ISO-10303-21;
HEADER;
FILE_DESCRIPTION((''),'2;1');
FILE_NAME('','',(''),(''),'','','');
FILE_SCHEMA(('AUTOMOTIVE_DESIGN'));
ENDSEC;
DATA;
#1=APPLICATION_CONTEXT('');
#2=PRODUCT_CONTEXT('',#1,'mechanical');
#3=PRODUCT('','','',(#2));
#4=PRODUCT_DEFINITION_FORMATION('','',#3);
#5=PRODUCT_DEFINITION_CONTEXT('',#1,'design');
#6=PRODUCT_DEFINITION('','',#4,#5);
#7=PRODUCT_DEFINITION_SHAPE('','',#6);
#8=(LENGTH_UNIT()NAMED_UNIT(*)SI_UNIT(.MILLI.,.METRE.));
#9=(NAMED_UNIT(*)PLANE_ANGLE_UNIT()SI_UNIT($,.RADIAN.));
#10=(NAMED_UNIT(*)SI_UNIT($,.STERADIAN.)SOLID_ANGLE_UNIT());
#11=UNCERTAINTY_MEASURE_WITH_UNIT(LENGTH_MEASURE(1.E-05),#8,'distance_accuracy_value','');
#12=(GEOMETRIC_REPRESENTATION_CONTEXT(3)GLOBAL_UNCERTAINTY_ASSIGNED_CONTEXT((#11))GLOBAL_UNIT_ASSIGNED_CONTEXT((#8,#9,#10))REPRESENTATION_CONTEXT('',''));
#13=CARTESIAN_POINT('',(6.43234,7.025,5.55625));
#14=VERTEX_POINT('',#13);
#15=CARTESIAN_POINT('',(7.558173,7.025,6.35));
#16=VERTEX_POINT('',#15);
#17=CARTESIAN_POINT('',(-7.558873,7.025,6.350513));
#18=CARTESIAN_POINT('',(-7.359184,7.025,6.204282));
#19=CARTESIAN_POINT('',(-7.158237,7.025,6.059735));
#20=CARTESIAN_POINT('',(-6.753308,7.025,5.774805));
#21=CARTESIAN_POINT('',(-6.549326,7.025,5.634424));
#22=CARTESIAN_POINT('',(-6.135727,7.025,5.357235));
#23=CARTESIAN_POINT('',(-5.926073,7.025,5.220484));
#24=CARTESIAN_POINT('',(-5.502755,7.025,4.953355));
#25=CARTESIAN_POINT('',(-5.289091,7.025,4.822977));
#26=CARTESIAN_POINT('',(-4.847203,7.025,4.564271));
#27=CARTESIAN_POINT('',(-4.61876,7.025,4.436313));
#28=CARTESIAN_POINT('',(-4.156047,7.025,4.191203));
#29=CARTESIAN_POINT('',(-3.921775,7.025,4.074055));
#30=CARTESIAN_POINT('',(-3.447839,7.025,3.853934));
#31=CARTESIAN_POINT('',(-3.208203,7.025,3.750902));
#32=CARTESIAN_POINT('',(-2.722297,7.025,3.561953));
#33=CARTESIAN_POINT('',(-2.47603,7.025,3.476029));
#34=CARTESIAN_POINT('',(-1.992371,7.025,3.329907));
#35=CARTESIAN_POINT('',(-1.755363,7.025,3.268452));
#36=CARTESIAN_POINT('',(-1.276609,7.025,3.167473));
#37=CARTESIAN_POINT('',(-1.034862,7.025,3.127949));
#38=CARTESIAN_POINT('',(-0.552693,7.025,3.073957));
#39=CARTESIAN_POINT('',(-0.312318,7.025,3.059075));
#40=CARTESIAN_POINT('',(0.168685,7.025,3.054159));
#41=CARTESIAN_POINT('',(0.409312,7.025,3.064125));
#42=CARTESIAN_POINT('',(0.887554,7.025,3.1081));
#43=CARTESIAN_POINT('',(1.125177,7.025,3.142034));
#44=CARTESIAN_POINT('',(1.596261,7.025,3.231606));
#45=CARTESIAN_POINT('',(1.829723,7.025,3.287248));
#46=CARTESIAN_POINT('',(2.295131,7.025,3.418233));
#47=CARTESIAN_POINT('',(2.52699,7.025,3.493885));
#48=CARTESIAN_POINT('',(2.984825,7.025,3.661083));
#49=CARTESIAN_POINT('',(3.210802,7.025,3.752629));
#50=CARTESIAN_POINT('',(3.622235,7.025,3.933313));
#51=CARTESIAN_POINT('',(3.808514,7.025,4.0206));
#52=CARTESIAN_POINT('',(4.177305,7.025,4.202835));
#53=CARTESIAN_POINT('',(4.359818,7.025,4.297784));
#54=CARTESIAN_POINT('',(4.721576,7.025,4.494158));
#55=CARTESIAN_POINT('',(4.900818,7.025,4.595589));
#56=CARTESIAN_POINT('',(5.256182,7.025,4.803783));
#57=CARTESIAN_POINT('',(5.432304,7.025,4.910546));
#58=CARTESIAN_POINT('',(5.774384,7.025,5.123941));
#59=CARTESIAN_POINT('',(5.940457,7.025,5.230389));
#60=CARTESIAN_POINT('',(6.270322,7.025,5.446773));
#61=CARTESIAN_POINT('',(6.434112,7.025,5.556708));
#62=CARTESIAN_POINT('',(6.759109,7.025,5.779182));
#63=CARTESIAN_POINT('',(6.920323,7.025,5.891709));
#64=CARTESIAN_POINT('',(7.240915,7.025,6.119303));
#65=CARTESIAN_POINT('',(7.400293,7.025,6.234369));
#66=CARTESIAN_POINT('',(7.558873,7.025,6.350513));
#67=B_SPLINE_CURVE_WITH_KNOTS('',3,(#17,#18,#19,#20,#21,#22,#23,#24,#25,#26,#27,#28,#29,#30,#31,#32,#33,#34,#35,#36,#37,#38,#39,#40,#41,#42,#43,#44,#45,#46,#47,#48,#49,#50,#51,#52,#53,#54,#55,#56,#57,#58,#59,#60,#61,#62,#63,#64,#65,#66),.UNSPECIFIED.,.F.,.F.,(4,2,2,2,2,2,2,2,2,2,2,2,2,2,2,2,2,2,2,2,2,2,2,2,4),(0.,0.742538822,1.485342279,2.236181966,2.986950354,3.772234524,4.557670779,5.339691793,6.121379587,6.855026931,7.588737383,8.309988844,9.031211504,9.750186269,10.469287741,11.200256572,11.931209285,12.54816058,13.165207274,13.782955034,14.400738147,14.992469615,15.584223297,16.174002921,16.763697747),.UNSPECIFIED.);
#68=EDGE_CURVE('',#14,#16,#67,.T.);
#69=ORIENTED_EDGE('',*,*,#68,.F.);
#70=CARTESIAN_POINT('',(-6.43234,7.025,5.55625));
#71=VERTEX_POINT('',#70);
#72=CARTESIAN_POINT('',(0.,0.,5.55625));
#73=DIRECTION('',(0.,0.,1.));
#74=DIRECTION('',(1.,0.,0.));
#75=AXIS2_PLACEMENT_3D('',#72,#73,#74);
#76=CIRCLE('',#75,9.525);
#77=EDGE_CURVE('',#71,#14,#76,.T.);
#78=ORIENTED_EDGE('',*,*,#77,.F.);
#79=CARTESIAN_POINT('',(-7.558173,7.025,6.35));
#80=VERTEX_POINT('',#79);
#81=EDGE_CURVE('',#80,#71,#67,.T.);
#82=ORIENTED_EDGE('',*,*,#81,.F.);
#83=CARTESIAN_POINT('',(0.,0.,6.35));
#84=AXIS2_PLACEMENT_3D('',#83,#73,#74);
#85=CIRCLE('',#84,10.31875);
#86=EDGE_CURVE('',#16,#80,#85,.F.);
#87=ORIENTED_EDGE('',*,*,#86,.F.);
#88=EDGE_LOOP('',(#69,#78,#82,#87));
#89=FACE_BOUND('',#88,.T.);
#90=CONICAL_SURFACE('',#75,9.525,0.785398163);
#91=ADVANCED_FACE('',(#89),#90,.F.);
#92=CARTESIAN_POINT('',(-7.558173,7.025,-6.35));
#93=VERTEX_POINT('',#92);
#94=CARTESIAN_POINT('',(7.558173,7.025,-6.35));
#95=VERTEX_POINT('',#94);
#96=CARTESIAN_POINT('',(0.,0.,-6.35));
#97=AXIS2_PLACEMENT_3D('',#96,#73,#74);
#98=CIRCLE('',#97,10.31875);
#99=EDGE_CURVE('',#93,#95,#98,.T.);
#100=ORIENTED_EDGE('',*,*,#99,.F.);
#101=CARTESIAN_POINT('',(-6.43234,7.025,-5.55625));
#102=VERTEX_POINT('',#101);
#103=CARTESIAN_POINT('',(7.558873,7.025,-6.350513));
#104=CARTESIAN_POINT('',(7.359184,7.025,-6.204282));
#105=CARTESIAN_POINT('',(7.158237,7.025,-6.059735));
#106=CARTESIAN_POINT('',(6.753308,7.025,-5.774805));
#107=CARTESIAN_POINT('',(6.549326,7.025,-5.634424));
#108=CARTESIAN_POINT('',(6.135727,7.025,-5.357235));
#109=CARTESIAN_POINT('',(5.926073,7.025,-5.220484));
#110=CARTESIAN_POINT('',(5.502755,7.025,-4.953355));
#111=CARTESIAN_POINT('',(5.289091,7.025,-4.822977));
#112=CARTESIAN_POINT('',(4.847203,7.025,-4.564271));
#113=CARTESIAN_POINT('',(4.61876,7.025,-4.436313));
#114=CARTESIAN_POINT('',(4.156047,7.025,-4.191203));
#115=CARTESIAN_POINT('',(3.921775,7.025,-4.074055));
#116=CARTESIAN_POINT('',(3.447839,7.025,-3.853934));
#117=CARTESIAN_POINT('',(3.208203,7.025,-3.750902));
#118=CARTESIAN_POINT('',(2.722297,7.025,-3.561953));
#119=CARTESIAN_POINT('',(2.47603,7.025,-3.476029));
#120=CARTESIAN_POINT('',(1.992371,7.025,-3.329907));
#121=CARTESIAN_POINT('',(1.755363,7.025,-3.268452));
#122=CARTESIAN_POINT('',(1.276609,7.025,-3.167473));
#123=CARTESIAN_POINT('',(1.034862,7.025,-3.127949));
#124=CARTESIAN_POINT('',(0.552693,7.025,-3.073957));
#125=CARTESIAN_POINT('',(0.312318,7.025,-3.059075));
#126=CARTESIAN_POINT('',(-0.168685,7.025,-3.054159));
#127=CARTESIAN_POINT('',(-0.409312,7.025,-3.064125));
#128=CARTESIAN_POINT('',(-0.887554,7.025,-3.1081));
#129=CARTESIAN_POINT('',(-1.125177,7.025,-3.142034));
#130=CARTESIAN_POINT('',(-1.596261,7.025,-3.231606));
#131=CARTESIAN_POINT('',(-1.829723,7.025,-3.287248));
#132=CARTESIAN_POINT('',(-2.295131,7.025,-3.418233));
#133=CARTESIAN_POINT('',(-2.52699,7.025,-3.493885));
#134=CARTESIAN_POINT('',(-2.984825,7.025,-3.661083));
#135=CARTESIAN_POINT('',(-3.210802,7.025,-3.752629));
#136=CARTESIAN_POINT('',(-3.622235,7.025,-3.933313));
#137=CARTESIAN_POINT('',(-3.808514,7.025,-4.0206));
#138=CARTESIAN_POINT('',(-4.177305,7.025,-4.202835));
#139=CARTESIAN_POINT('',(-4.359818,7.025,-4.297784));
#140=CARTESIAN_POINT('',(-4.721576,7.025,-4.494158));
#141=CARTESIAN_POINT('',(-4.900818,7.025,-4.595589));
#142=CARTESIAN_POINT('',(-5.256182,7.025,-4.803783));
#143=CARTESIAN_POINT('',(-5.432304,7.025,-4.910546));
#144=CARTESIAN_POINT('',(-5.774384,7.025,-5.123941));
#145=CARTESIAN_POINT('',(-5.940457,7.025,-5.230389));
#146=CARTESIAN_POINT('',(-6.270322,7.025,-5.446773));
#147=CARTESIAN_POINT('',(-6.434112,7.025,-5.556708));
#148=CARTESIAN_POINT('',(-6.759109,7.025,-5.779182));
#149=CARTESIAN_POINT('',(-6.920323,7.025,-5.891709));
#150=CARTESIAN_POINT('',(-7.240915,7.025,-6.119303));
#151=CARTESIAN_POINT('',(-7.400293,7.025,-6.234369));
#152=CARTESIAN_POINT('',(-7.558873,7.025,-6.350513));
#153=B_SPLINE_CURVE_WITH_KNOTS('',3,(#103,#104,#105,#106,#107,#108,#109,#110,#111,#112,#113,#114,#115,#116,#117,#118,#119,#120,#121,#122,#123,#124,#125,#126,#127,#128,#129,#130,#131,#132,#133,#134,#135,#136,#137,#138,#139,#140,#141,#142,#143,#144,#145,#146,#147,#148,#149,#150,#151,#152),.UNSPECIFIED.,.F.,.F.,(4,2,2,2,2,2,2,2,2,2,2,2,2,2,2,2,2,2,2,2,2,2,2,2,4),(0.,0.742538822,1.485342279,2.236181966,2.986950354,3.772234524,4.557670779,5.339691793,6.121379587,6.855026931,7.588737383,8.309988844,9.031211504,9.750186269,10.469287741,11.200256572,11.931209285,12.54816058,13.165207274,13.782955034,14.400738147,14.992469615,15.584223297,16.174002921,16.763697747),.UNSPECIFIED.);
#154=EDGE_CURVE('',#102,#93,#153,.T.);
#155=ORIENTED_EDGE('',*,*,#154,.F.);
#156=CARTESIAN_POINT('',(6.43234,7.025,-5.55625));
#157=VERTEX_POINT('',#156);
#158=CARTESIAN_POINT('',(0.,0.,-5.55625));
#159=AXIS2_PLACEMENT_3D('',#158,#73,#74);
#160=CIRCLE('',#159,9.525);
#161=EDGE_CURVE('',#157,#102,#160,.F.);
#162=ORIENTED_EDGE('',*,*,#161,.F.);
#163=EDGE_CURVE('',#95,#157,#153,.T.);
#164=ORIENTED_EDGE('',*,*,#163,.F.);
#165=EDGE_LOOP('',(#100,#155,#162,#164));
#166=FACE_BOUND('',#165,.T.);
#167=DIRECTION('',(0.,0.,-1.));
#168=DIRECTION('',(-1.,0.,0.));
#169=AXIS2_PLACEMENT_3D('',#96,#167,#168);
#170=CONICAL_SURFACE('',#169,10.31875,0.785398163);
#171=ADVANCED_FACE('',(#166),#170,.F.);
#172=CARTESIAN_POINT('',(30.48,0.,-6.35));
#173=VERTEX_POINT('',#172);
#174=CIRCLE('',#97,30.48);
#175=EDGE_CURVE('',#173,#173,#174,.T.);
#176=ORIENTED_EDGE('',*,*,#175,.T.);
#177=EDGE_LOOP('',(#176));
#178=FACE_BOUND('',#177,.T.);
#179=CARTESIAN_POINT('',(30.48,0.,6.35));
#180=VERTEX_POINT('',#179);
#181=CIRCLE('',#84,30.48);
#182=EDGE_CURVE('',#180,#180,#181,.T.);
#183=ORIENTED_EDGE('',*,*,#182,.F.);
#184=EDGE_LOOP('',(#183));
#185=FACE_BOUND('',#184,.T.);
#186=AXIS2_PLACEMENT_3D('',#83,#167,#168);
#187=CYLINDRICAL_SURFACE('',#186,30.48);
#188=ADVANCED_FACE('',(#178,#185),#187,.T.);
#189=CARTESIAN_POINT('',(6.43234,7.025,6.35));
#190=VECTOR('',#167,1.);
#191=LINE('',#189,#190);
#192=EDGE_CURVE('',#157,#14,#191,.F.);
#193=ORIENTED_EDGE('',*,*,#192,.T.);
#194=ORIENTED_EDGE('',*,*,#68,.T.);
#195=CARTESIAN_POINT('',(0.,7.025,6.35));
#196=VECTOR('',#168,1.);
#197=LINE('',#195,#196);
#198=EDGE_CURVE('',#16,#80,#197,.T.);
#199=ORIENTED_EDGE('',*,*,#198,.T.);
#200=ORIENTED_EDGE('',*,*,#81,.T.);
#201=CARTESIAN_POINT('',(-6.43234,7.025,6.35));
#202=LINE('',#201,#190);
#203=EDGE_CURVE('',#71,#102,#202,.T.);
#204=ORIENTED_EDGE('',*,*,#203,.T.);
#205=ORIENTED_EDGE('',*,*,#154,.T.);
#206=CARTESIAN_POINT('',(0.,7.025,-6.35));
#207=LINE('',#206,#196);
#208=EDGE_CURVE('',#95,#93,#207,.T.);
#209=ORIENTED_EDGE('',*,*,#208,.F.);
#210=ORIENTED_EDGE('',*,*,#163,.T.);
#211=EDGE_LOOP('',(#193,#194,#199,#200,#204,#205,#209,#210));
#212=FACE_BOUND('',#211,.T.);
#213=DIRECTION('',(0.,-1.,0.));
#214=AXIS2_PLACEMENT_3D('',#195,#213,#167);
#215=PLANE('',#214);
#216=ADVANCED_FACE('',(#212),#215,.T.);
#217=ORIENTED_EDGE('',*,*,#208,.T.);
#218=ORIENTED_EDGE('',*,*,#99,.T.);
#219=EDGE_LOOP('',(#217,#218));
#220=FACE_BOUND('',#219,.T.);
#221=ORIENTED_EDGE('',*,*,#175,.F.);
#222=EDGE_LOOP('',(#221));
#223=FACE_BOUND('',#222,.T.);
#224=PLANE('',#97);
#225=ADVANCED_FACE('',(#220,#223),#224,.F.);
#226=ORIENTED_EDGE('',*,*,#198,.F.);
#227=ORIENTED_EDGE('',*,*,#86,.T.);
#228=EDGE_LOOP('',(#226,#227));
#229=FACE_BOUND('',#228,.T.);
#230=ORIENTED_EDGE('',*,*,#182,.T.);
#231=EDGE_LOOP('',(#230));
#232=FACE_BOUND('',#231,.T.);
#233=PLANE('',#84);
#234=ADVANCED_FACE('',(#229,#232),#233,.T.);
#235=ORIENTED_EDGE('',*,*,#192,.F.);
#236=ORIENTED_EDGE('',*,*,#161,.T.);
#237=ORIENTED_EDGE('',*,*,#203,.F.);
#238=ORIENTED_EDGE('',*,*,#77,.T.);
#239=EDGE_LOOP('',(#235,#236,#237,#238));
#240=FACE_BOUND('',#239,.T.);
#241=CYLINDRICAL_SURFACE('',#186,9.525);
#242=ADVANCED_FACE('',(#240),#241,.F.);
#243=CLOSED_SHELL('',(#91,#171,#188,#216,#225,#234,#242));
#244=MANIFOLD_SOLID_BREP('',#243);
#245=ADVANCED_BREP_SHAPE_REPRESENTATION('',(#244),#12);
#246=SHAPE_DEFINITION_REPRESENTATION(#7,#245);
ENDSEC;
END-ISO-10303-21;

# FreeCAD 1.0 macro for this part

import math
import FreeCAD as App
import Part
import Sketcher
Q = App.Units.Quantity


def edges_at(feature, points):
    """Names of the edges that pass closest to the given points."""
    edges = feature.Shape.Edges
    near = lambda p: min(range(len(edges)), key=lambda i: edges[i].distToShape(Part.Vertex(*p))[0])
    return sorted({f"Edge{near(p) + 1}" for p in points})

doc = App.newDocument("Part")
params = doc.addObject("Spreadsheet::Sheet", "Params")
for row, (alias, value) in enumerate([
    ("sketch1_diameter", "2.4 in"),
    ("sketch1_diameter2", "0.75 in"),
    ("pad1_length", "0.5 in"),
    ("chamfer_size", "0.03125 in"),
    ("sketch2_radius", "0.40625 in"),
    ("pad2_length", "0.5 in"),
], start=1):
    params.set(f"A{row}", alias)
    params.set(f"B{row}", "=" + value)
    params.setAlias(f"B{row}", alias)

body = doc.addObject("PartDesign::Body", "Body")

sketch1 = body.newObject("Sketcher::SketchObject", "Sketch")
sketch1.AttachmentSupport = (doc.getObject("XY_Plane"), [""])
sketch1.MapMode = "FlatFace"
sketch1.addGeometry([
    Part.Circle(App.Vector(0, 0, 0), App.Vector(0, 0, 1), 30),
    Part.Circle(App.Vector(0, 0, 0), App.Vector(0, 0, 1), 10),
], False)
sketch1.addConstraint([
    Sketcher.Constraint("Coincident", 0, 3, -1, 1),
    Sketcher.Constraint("Coincident", 1, 3, -1, 1),
    Sketcher.Constraint("Diameter", 0, Q("2.4 in")),
    Sketcher.Constraint("Diameter", 1, Q("0.75 in")),
])
sketch1.setExpression("Constraints[2]", "Params.sketch1_diameter")
sketch1.setExpression("Constraints[3]", "Params.sketch1_diameter2")
pad1 = body.newObject("PartDesign::Pad", "Pad")
pad1.Profile = sketch1
pad1.setExpression("Length", "Params.pad1_length")
pad1.Midplane = True
doc.recompute()

chamfer = body.newObject("PartDesign::Chamfer", "Chamfer")
chamfer.Base = (pad1, edges_at(pad1, [(-9.525, 0, -6.35), (-9.525, 0, 6.35)]))
chamfer.setExpression("Size", "Params.chamfer_size")

sketch2 = body.newObject("Sketcher::SketchObject", "Sketch001")
sketch2.AttachmentSupport = (doc.getObject("XY_Plane"), [""])
sketch2.MapMode = "FlatFace"
sketch2.AttachmentOffset = App.Placement(App.Vector(0, 0, -0.25 * 25.4), App.Rotation())
sketch2.addGeometry([
    Part.ArcOfCircle(Part.Circle(App.Vector(0, 0, 0), App.Vector(0, 0, 1), 10), math.radians(43), math.radians(137)),
    Part.LineSegment(App.Vector(8, 7, 0), App.Vector(-8, 7, 0)),
], False)
sketch2.addConstraint([
    Sketcher.Constraint("Coincident", 0, 1, 1, 1),
    Sketcher.Constraint("Coincident", 1, 2, 0, 2),
    Sketcher.Constraint("Horizontal", 1),
    Sketcher.Constraint("Coincident", 0, 3, -1, 1),
    Sketcher.Constraint("Radius", 0, Q("0.40625 in")),
    Sketcher.Constraint("DistanceY", -1, 1, 0, 1, Q("7.025 mm")),
])
sketch2.setExpression("Constraints[4]", "Params.sketch2_radius")
pad2 = body.newObject("PartDesign::Pad", "Pad001")
pad2.Profile = sketch2
pad2.setExpression("Length", "Params.pad2_length")

doc.recompute()
